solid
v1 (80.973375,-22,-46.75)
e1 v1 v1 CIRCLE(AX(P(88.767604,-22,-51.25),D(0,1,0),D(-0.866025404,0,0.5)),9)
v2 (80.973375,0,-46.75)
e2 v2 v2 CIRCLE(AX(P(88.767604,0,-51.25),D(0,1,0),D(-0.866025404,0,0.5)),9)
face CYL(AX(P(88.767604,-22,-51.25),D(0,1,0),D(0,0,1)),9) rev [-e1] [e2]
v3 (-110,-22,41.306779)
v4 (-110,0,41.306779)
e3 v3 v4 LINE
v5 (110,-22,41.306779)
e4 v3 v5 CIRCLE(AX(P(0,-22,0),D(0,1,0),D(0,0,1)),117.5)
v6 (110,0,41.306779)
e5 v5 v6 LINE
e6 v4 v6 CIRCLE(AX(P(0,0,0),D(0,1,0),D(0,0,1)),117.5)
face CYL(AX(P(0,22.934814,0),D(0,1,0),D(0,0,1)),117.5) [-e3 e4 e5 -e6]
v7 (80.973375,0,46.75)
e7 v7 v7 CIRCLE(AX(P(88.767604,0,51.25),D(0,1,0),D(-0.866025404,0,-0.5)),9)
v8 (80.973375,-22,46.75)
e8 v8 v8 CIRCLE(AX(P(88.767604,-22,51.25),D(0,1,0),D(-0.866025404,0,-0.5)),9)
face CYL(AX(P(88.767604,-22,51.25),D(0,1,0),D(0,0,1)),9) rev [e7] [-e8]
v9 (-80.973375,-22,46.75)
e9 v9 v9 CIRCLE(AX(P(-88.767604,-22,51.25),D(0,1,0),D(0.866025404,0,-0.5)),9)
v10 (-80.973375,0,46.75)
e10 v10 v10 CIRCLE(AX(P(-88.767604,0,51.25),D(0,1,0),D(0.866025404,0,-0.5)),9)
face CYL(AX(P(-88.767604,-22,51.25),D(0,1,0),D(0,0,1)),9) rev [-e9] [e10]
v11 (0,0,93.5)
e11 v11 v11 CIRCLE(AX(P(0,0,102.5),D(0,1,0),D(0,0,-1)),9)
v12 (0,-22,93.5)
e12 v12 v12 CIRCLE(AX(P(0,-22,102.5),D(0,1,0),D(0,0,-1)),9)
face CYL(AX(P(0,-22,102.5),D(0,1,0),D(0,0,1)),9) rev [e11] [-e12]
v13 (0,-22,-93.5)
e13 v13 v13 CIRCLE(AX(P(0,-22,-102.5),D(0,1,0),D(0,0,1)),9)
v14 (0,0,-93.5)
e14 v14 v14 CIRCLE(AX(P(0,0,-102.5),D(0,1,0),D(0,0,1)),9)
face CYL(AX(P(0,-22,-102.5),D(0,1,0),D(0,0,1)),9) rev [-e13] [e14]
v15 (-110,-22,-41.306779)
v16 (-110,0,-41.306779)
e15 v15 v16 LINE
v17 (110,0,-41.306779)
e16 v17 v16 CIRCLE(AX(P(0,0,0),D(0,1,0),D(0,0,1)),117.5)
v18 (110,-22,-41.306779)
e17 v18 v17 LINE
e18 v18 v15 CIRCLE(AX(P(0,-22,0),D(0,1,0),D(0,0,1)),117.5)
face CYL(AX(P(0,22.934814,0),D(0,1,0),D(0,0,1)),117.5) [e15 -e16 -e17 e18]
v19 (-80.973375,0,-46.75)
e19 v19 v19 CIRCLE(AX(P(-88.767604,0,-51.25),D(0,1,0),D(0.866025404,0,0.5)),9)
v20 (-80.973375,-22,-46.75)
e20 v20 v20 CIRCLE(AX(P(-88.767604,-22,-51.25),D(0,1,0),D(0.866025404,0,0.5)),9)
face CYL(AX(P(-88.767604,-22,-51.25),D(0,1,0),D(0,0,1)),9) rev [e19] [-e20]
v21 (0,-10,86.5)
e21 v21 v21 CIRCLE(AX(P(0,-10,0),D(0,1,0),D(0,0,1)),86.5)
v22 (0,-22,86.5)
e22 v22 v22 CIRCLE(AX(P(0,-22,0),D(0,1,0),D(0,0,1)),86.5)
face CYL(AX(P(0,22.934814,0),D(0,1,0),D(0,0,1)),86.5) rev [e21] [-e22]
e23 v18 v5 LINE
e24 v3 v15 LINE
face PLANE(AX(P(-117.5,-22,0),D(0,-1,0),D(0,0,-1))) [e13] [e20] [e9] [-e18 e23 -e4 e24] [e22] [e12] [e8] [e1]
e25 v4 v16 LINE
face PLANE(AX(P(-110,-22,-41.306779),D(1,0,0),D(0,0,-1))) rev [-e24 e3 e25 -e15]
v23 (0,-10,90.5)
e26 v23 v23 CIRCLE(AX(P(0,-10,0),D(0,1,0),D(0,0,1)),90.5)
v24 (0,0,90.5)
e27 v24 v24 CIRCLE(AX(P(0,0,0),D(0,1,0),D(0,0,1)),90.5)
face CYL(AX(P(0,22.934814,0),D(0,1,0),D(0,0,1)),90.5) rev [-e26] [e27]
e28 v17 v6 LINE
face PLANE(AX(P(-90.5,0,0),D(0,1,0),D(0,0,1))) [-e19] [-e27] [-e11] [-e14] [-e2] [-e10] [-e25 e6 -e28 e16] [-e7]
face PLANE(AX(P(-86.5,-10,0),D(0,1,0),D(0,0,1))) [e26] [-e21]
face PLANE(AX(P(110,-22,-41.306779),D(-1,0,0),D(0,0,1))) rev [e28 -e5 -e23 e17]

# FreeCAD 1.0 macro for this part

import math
import FreeCAD as App
import Part
import Sketcher

doc = App.newDocument("Part")
body = doc.addObject("PartDesign::Body", "Body")

sketch1 = body.newObject("Sketcher::SketchObject", "Sketch")
sketch1.AttachmentSupport = (doc.getObject("XY_Plane"), [""])
sketch1.MapMode = "FlatFace"
sketch1.addGeometry([
    Part.LineSegment(App.Vector(-90.5, 0, 0), App.Vector(-117.5, 0, 0)),
    Part.LineSegment(App.Vector(-117.5, 0, 0), App.Vector(-117.5, -22, 0)),
    Part.LineSegment(App.Vector(-117.5, -22, 0), App.Vector(-86.5, -22, 0)),
    Part.LineSegment(App.Vector(-86.5, -22, 0), App.Vector(-86.5, -10, 0)),
    Part.LineSegment(App.Vector(-86.5, -10, 0), App.Vector(-90.5, -10, 0)),
    Part.LineSegment(App.Vector(-90.5, -10, 0), App.Vector(-90.5, 0, 0)),
], False)
sketch1.addConstraint([
    Sketcher.Constraint("Coincident", 0, 2, 1, 1),
    Sketcher.Constraint("Coincident", 1, 2, 2, 1),
    Sketcher.Constraint("Coincident", 2, 2, 3, 1),
    Sketcher.Constraint("Coincident", 3, 2, 4, 1),
    Sketcher.Constraint("Coincident", 4, 2, 5, 1),
    Sketcher.Constraint("Coincident", 5, 2, 0, 1),
    Sketcher.Constraint("Horizontal", 0),
    Sketcher.Constraint("Vertical", 1),
    Sketcher.Constraint("Horizontal", 2),
    Sketcher.Constraint("Vertical", 3),
    Sketcher.Constraint("Horizontal", 4),
    Sketcher.Constraint("Vertical", 5),
    Sketcher.Constraint("PointOnObject", 0, 2, -1),
    Sketcher.Constraint("DistanceX", 0, 2, 0, 1, 27.0),
    Sketcher.Constraint("DistanceX", 2, 1, 2, 2, 31.0),
    Sketcher.Constraint("DistanceY", 1, 2, 1, 1, 22.0),
    Sketcher.Constraint("DistanceY", 3, 1, 3, 2, 12.0),
    Sketcher.Constraint("DistanceX", 0, 2, -1, 1, 117.5),
])
revolution = body.newObject("PartDesign::Revolution", "Revolution")
revolution.Profile = sketch1
revolution.ReferenceAxis = (sketch1, ["V_Axis"])
revolution.Angle = 360

sketch2 = body.newObject("Sketcher::SketchObject", "Sketch001")
sketch2.AttachmentSupport = (doc.getObject("XZ_Plane"), [""])
sketch2.MapMode = "FlatFace"
sketch2.addGeometry([
    Part.LineSegment(App.Vector(-110, 41, 0), App.Vector(-110, -41, 0)),
    Part.ArcOfCircle(Part.Circle(App.Vector(0, 0, 0), App.Vector(0, 0, 1), 118), math.radians(159), math.radians(201)),
    Part.LineSegment(App.Vector(110, -41, 0), App.Vector(110, 41, 0)),
    Part.ArcOfCircle(Part.Circle(App.Vector(0, 0, 0), App.Vector(0, 0, 1), 118), math.radians(-21), math.radians(21)),
], False)
sketch2.addConstraint([
    Sketcher.Constraint("Coincident", 0, 1, 1, 1),
    Sketcher.Constraint("Coincident", 1, 2, 0, 2),
    Sketcher.Constraint("Coincident", 2, 1, 3, 1),
    Sketcher.Constraint("Coincident", 3, 2, 2, 2),
    Sketcher.Constraint("Vertical", 0),
    Sketcher.Constraint("Vertical", 2),
    Sketcher.Constraint("Coincident", 1, 3, -1, 1),
    Sketcher.Constraint("Coincident", 3, 3, -1, 1),
    Sketcher.Constraint("Equal", 1, 3),
    Sketcher.Constraint("Horizontal", 1, 2, 2, 1),
    Sketcher.Constraint("Radius", 1, 117.5),
    Sketcher.Constraint("DistanceX", 0, 1, -1, 1, 110.0),
])
pocket1 = body.newObject("PartDesign::Pocket", "Pocket")
pocket1.Profile = sketch2
pocket1.Type = "ThroughAll"
pocket1.Reversed = True

sketch3 = body.newObject("Sketcher::SketchObject", "Sketch002")
sketch3.AttachmentSupport = (doc.getObject("XZ_Plane"), [""])
sketch3.MapMode = "FlatFace"
sketch3.addGeometry(Part.Circle(App.Vector(0, -102, 0), App.Vector(0, 0, 1), 9), False)
sketch3.addConstraint([
    Sketcher.Constraint("PointOnObject", 0, 3, -2),
    Sketcher.Constraint("Diameter", 0, 18.0),
    Sketcher.Constraint("DistanceY", 0, 3, -1, 1, 102.5),
])
pocket2 = body.newObject("PartDesign::Pocket", "Pocket001")
pocket2.Profile = sketch3
pocket2.Type = "ThroughAll"
pocket2.Reversed = True
doc.recompute()

polarpattern = body.newObject("PartDesign::PolarPattern", "PolarPattern")
polarpattern.Originals = [pocket2]
polarpattern.Axis = (doc.getObject("Y_Axis"), [""])
polarpattern.Angle = 360
polarpattern.Occurrences = 6
body.Tip = polarpattern

doc.recompute()
